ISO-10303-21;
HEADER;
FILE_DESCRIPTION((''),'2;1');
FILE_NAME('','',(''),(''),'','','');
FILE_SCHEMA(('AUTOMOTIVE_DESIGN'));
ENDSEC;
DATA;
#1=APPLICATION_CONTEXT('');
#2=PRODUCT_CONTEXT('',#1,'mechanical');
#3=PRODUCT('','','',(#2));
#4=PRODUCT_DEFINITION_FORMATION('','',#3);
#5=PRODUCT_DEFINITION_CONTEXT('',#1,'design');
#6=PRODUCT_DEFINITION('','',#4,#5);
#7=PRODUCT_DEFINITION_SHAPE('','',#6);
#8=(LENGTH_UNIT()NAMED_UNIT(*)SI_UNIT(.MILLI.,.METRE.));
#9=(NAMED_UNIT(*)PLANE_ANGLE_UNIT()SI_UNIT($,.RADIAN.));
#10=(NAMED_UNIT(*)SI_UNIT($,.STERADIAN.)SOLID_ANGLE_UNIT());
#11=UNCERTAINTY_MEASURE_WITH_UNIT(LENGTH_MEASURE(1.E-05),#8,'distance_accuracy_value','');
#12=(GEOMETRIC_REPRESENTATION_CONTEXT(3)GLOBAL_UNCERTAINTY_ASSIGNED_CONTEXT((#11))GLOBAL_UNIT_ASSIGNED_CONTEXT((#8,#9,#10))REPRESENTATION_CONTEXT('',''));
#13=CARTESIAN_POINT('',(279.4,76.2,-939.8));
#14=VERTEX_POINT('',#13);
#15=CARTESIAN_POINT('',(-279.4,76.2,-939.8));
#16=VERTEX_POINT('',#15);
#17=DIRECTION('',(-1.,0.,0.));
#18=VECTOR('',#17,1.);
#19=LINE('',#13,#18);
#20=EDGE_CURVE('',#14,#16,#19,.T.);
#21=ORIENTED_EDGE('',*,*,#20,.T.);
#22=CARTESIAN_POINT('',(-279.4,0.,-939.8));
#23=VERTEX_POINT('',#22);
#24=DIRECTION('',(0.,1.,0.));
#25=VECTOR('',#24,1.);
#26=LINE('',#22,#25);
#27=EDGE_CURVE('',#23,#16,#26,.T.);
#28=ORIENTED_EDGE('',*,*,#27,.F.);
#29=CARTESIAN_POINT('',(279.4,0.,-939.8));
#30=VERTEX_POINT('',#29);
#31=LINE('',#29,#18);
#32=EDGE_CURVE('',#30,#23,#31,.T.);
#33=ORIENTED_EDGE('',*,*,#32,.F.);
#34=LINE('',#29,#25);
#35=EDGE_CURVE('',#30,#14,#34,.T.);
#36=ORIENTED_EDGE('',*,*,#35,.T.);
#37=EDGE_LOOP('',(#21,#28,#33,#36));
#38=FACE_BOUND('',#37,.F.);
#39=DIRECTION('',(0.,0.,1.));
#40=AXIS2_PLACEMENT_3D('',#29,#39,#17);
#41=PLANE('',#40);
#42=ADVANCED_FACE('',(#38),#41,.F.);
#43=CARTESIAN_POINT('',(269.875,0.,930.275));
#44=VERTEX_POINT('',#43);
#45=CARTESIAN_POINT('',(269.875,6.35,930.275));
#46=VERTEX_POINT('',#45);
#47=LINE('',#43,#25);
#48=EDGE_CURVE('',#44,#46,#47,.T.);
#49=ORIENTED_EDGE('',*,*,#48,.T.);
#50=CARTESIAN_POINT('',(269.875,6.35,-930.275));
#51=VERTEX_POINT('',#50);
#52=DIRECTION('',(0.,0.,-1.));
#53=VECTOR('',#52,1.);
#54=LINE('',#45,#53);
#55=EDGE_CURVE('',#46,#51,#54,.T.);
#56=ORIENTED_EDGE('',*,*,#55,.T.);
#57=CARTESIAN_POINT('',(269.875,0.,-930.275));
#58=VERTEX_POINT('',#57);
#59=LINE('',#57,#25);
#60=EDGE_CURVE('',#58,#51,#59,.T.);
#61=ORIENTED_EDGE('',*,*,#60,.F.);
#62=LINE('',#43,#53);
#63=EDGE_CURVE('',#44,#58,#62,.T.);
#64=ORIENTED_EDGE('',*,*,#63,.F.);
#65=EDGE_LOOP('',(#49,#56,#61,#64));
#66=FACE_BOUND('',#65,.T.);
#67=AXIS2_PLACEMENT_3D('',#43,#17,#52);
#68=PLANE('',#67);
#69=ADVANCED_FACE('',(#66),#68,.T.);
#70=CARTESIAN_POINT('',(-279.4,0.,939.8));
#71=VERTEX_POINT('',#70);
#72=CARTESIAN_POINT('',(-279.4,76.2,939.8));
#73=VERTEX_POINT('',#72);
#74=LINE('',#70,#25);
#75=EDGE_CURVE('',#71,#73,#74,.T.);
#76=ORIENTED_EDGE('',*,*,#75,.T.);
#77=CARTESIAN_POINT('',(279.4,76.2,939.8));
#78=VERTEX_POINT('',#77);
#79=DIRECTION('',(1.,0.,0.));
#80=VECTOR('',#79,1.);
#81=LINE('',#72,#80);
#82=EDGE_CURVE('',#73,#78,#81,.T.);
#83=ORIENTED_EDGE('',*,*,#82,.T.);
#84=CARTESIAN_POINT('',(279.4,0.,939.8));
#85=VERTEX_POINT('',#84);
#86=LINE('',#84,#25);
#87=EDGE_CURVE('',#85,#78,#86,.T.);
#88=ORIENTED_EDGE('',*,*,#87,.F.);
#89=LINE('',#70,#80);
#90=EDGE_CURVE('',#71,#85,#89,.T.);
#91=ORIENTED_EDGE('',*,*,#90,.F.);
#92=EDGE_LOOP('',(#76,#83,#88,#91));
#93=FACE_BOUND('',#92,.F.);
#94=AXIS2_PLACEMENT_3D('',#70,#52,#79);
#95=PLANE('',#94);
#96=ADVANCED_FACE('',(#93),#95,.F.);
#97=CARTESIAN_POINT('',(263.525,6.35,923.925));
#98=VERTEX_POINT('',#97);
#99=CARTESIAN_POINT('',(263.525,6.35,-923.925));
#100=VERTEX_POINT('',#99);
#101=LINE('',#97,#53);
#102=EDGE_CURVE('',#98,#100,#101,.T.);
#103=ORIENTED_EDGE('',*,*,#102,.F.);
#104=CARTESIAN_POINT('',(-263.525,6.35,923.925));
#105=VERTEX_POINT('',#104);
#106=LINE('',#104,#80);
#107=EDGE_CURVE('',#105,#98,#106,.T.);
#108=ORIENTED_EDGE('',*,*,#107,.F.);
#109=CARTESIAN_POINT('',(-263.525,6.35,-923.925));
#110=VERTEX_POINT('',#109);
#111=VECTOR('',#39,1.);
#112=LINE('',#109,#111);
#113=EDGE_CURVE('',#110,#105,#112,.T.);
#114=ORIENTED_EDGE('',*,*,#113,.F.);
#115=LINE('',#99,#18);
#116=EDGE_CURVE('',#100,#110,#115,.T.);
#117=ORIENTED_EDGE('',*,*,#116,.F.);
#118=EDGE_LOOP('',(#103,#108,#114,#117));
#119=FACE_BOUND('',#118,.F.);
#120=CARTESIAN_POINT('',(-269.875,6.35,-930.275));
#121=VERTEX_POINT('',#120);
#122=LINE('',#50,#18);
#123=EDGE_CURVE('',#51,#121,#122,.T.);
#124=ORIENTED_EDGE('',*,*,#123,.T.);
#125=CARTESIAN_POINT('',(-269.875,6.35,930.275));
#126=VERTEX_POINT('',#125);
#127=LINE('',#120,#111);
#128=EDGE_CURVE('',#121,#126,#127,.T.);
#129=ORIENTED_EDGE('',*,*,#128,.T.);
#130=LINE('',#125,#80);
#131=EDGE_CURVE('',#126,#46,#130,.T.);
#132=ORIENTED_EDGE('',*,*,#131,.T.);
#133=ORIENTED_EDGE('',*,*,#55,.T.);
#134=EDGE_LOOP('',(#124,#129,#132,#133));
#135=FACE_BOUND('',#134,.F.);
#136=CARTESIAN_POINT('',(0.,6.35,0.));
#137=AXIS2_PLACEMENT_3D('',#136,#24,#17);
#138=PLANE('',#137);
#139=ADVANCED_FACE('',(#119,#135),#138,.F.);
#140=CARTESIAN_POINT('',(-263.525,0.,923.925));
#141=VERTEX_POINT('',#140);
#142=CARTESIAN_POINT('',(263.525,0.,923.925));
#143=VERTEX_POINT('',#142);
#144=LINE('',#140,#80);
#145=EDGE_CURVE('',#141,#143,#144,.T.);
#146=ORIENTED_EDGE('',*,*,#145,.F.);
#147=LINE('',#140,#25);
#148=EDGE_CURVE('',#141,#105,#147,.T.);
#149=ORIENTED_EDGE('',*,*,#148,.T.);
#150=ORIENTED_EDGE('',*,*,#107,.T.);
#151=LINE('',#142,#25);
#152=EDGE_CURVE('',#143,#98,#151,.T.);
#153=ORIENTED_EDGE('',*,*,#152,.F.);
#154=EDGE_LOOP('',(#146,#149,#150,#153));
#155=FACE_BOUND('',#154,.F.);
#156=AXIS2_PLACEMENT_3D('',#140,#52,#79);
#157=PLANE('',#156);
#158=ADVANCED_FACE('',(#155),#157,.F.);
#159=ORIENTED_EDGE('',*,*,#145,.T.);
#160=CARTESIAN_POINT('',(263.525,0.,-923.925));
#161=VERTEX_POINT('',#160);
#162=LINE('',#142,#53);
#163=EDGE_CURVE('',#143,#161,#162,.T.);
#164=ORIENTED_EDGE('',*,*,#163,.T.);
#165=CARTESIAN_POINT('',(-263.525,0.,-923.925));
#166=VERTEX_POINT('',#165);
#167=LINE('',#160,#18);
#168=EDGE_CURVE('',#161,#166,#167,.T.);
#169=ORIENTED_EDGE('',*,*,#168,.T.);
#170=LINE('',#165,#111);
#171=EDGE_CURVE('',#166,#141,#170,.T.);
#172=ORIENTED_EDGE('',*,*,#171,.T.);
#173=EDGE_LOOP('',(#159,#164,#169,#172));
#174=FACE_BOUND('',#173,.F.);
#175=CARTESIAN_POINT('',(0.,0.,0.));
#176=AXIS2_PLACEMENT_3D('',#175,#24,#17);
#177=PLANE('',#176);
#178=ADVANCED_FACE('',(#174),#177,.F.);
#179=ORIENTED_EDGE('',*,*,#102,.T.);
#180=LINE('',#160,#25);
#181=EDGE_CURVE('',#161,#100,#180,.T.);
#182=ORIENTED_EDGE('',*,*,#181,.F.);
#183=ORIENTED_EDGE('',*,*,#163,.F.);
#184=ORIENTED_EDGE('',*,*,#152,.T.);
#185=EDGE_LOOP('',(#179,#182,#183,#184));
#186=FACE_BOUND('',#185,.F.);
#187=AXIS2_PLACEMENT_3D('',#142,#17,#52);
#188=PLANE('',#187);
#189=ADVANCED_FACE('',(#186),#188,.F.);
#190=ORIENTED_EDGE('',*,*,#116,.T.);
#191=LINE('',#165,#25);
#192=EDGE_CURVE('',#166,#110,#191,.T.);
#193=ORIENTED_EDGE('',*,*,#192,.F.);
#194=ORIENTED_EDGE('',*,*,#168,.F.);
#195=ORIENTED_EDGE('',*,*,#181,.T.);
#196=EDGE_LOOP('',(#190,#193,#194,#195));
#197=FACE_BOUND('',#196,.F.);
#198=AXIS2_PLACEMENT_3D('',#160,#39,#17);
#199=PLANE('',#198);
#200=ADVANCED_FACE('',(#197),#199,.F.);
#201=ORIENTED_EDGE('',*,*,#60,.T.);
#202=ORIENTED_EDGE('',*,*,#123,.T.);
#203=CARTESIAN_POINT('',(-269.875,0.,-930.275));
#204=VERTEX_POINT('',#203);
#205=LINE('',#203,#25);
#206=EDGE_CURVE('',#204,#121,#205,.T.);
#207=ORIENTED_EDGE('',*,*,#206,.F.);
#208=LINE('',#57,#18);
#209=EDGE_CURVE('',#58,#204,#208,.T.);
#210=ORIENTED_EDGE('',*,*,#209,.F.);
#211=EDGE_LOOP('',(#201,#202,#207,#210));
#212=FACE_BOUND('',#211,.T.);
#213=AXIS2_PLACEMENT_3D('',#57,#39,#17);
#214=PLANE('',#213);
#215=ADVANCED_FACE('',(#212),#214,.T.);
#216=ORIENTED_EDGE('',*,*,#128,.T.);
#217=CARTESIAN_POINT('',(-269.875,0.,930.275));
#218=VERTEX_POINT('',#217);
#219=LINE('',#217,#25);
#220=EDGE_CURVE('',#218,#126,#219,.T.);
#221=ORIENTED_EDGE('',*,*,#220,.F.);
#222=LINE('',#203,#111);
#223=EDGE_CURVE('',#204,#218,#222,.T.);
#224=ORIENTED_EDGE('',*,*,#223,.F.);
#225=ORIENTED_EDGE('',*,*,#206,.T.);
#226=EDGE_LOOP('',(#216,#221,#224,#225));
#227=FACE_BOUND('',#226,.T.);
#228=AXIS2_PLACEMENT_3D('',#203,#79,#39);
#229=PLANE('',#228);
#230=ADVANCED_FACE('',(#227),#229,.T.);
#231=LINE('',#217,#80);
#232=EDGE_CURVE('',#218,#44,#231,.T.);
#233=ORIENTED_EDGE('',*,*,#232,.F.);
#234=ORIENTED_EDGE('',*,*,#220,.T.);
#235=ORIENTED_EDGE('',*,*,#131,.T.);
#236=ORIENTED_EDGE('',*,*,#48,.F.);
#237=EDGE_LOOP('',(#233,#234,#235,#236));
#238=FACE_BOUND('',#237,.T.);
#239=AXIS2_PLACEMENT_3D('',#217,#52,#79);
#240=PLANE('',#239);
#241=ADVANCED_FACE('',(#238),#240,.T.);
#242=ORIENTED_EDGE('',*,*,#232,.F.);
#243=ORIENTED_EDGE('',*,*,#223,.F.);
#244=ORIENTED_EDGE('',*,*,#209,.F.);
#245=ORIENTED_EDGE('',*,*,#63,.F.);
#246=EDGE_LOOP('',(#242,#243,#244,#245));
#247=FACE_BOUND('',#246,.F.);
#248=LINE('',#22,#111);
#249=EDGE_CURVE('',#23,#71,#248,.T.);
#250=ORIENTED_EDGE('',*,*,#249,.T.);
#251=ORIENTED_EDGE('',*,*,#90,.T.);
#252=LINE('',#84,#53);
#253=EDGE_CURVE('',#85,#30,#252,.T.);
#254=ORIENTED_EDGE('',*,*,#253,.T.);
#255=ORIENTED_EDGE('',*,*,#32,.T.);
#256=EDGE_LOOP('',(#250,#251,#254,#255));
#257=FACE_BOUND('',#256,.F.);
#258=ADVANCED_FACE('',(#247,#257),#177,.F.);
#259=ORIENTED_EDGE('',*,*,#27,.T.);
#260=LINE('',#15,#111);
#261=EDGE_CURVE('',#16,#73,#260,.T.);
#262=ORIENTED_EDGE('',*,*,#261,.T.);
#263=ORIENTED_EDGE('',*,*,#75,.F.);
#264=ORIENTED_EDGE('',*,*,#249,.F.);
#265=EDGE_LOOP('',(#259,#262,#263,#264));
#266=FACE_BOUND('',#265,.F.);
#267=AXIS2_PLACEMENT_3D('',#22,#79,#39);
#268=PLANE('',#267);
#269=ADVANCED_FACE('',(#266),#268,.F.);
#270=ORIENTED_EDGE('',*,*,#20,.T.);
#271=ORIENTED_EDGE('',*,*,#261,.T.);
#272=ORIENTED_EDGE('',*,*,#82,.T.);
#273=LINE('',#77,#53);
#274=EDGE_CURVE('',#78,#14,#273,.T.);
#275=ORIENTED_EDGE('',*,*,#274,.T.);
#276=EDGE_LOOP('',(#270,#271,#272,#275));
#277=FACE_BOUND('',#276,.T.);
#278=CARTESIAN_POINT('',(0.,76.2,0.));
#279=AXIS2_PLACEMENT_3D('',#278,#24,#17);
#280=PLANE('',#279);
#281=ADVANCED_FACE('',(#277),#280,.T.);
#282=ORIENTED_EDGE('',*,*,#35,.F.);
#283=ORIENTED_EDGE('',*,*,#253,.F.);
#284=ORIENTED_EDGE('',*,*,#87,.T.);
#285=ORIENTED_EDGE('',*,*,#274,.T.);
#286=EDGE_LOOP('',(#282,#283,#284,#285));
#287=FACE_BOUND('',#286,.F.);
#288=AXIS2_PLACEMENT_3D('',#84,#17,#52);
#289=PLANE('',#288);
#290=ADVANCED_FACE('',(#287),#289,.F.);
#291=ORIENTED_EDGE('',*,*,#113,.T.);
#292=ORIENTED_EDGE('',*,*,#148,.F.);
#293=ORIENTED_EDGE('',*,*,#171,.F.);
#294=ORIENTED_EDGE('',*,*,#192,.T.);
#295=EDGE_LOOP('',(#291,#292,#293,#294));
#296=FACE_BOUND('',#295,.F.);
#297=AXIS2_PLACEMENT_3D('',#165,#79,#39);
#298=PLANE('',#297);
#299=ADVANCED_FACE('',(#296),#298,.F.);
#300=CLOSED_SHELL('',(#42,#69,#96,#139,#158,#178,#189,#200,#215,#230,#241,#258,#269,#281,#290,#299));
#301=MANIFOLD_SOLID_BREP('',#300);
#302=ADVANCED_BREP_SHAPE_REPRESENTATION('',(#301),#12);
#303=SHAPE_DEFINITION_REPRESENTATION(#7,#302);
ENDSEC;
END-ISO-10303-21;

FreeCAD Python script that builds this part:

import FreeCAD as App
import Part
import Sketcher
Q = App.Units.Quantity


def add_polygon(sketch, points):
    """Adds a closed chain of lines whose ends are joined by coincident constraints."""
    first, n = sketch.GeometryCount, len(points)
    for a, b in zip(points, points[1:] + points[:1]):
        sketch.addGeometry(Part.LineSegment(App.Vector(*a, 0), App.Vector(*b, 0)), False)
    for i in range(n):
        sketch.addConstraint(Sketcher.Constraint("Coincident", first + i, 2, first + (i + 1) % n, 1))

doc = App.newDocument("Part")
body = doc.addObject("PartDesign::Body", "Body")

# Sketch on XZ plane
sketch1 = doc.addObject("Sketcher::SketchObject", "Sketch")
body.addObject(sketch1)
sketch1.AttachmentSupport = (doc.XZ_Plane, [""])
sketch1.MapMode = "FlatFace"
add_polygon(sketch1, [(-279, -940), (-279, 940), (279, 940), (279, -940)])  # lines 0-3
sketch1.addConstraint(Sketcher.Constraint("Vertical", 0))
sketch1.addConstraint(Sketcher.Constraint("Horizontal", 1))
sketch1.addConstraint(Sketcher.Constraint("Vertical", 2))
sketch1.addConstraint(Sketcher.Constraint("Horizontal", 3))
sketch1.addConstraint(Sketcher.Constraint("Symmetric", 0, 2, 2, 2, -1, 1))
sketch1.addConstraint(Sketcher.Constraint("DistanceX", 1, 1, 1, 2, Q("22 in")))
sketch1.addConstraint(Sketcher.Constraint("DistanceY", 0, 1, 0, 2, Q("74 in")))
pad1 = doc.addObject("PartDesign::Pad", "Pad")
body.addObject(pad1)
pad1.Profile = sketch1
pad1.Length = Q("3 in")
pad1.Reversed = True

# Sketch on XZ plane
sketch2 = doc.addObject("Sketcher::SketchObject", "Sketch001")
body.addObject(sketch2)
sketch2.AttachmentSupport = (doc.XZ_Plane, [""])
sketch2.MapMode = "FlatFace"
add_polygon(sketch2, [(-270, -930), (-270, 930), (270, 930), (270, -930)])  # lines 0-3
add_polygon(sketch2, [(264, 924), (-264, 924), (-264, -924), (264, -924)])  # lines 4-7
sketch2.addConstraint(Sketcher.Constraint("Vertical", 0))
sketch2.addConstraint(Sketcher.Constraint("Horizontal", 1))
sketch2.addConstraint(Sketcher.Constraint("Vertical", 2))
sketch2.addConstraint(Sketcher.Constraint("Horizontal", 3))
sketch2.addConstraint(Sketcher.Constraint("Horizontal", 4))
sketch2.addConstraint(Sketcher.Constraint("Vertical", 5))
sketch2.addConstraint(Sketcher.Constraint("Horizontal", 6))
sketch2.addConstraint(Sketcher.Constraint("Vertical", 7))
sketch2.addConstraint(Sketcher.Constraint("Symmetric", 0, 2, 2, 2, -1, 1))
sketch2.addConstraint(Sketcher.Constraint("Symmetric", 4, 2, 6, 2, -1, 1))
sketch2.addConstraint(Sketcher.Constraint("DistanceX", 0, 2, 4, 2, Q("0.25 in")))
sketch2.addConstraint(Sketcher.Constraint("DistanceY", 4, 2, 0, 2, Q("0.25 in")))
sketch2.addConstraint(Sketcher.Constraint("DistanceX", 4, 2, 1, 2, Q("21 in")))
sketch2.addConstraint(Sketcher.Constraint("DistanceY", 3, 2, 4, 2, Q("73 in")))
pocket1 = doc.addObject("PartDesign::Pocket", "Pocket")
body.addObject(pocket1)
pocket1.Profile = sketch2
pocket1.Length = Q("0.25 in")

doc.recompute()
